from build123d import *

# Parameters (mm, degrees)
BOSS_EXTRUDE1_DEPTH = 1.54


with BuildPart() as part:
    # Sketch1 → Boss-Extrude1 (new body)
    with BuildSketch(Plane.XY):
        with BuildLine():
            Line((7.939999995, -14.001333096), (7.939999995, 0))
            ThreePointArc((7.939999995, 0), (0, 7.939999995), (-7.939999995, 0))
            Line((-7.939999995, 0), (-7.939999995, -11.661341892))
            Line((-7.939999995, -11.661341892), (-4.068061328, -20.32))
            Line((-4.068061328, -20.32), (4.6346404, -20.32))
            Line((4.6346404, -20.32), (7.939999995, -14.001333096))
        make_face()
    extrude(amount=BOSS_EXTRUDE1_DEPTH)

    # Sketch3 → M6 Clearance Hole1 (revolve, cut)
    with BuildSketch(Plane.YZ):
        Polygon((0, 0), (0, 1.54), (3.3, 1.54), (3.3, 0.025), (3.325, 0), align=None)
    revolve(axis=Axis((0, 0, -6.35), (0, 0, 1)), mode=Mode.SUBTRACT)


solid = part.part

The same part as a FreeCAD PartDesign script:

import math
import FreeCAD as App
import Part
import Sketcher
Q = App.Units.Quantity


def add_polygon(sketch, points):
    """Adds a closed chain of lines whose ends are joined by coincident constraints."""
    first, n = sketch.GeometryCount, len(points)
    for a, b in zip(points, points[1:] + points[:1]):
        sketch.addGeometry(Part.LineSegment(App.Vector(*a, 0), App.Vector(*b, 0)), False)
    for i in range(n):
        sketch.addConstraint(Sketcher.Constraint("Coincident", first + i, 2, first + (i + 1) % n, 1))

doc = App.newDocument("Part")
params = doc.addObject("Spreadsheet::Sheet", "Params")
for row, (alias, value) in enumerate([
    ("sketch1_radius", "7.94 mm"),
    ("pad1_length", "1.54 mm"),
    ("sketch2_width", "3.3 mm"),
    ("sketch2_height", "1.54 mm"),
    ("groove_angle", "360 deg"),
], start=1):
    params.set(f"A{row}", alias)
    params.set(f"B{row}", "=" + value)
    params.setAlias(f"B{row}", alias)

body = doc.addObject("PartDesign::Body", "Body")

# Sketch on XY plane
sketch1 = body.newObject("Sketcher::SketchObject", "Sketch")
sketch1.AttachmentSupport = (doc.getObject("XY_Plane"), [""])
sketch1.MapMode = "FlatFace"
sketch1.addGeometry([
    Part.LineSegment(App.Vector(8, -14, 0), App.Vector(8, 0, 0)),  # 0
    Part.ArcOfCircle(Part.Circle(App.Vector(0, 0, 0), App.Vector(0, 0, 1), 8), math.radians(0), math.radians(180)),  # 1
    Part.LineSegment(App.Vector(-8, 0, 0), App.Vector(-8, -12, 0)),  # 2
    Part.LineSegment(App.Vector(-8, -12, 0), App.Vector(-4, -20, 0)),  # 3
    Part.LineSegment(App.Vector(-4, -20, 0), App.Vector(5, -20, 0)),  # 4
    Part.LineSegment(App.Vector(5, -20, 0), App.Vector(8, -14, 0)),  # 5
], False)
sketch1.addConstraint([
    Sketcher.Constraint("Tangent", 0, 2, 1, 1),
    Sketcher.Constraint("Tangent", 1, 2, 2, 1),
    Sketcher.Constraint("Coincident", 2, 2, 3, 1),
    Sketcher.Constraint("Coincident", 3, 2, 4, 1),
    Sketcher.Constraint("Coincident", 4, 2, 5, 1),
    Sketcher.Constraint("Coincident", 5, 2, 0, 1),
    Sketcher.Constraint("Vertical", 0),
    Sketcher.Constraint("Vertical", 2),
    Sketcher.Constraint("Horizontal", 4),
    Sketcher.Constraint("Coincident", 1, 3, -1, 1),
    Sketcher.Constraint("Radius", 1, Q("7.94 mm")),
    Sketcher.Constraint("DistanceY", 3, 2, -1, 1, Q("20.32 mm")),
    Sketcher.Constraint("DistanceX", 4, 1, 4, 2, Q("8.702702 mm")),
    Sketcher.Constraint("DistanceY", 2, 2, 2, 1, Q("11.661342 mm")),
    Sketcher.Constraint("Distance", 3, Q("9.48495 mm")),
    Sketcher.Constraint("DistanceY", 0, 1, 0, 2, Q("14.001333 mm")),
])
sketch1.setExpression("Constraints[10]", "Params.sketch1_radius")
pad1 = body.newObject("PartDesign::Pad", "Pad")
pad1.Profile = sketch1
pad1.setExpression("Length", "Params.pad1_length")

# Sketch on YZ plane
sketch2 = body.newObject("Sketcher::SketchObject", "Sketch001")
sketch2.AttachmentSupport = (doc.getObject("YZ_Plane"), [""])
sketch2.MapMode = "FlatFace"
add_polygon(sketch2, [(0, 1.54), (0, 0), (3.325, 0), (3.3, 0.025), (3.3, 1.54)])  # lines 0-4
sketch2.addConstraint([
    Sketcher.Constraint("Vertical", 0),
    Sketcher.Constraint("Horizontal", 1),
    Sketcher.Constraint("Vertical", 3),
    Sketcher.Constraint("Horizontal", 4),
    Sketcher.Constraint("Coincident", 0, 2, -1, 1),
    Sketcher.Constraint("Angle", 2, Q("135 deg")),
    Sketcher.Constraint("DistanceX", 4, 2, 4, 1, Q("3.3 mm")),
    Sketcher.Constraint("DistanceY", 0, 2, 0, 1, Q("1.54 mm")),
    Sketcher.Constraint("DistanceX", 1, 1, 1, 2, Q("3.325 mm")),
])
sketch2.setExpression("Constraints[11]", "Params.sketch2_width")
sketch2.setExpression("Constraints[12]", "Params.sketch2_height")
groove = body.newObject("PartDesign::Groove", "Groove")
groove.Profile = sketch2
groove.ReferenceAxis = (sketch2, ["V_Axis"])
groove.setExpression("Angle", "Params.groove_angle")

doc.recompute()
